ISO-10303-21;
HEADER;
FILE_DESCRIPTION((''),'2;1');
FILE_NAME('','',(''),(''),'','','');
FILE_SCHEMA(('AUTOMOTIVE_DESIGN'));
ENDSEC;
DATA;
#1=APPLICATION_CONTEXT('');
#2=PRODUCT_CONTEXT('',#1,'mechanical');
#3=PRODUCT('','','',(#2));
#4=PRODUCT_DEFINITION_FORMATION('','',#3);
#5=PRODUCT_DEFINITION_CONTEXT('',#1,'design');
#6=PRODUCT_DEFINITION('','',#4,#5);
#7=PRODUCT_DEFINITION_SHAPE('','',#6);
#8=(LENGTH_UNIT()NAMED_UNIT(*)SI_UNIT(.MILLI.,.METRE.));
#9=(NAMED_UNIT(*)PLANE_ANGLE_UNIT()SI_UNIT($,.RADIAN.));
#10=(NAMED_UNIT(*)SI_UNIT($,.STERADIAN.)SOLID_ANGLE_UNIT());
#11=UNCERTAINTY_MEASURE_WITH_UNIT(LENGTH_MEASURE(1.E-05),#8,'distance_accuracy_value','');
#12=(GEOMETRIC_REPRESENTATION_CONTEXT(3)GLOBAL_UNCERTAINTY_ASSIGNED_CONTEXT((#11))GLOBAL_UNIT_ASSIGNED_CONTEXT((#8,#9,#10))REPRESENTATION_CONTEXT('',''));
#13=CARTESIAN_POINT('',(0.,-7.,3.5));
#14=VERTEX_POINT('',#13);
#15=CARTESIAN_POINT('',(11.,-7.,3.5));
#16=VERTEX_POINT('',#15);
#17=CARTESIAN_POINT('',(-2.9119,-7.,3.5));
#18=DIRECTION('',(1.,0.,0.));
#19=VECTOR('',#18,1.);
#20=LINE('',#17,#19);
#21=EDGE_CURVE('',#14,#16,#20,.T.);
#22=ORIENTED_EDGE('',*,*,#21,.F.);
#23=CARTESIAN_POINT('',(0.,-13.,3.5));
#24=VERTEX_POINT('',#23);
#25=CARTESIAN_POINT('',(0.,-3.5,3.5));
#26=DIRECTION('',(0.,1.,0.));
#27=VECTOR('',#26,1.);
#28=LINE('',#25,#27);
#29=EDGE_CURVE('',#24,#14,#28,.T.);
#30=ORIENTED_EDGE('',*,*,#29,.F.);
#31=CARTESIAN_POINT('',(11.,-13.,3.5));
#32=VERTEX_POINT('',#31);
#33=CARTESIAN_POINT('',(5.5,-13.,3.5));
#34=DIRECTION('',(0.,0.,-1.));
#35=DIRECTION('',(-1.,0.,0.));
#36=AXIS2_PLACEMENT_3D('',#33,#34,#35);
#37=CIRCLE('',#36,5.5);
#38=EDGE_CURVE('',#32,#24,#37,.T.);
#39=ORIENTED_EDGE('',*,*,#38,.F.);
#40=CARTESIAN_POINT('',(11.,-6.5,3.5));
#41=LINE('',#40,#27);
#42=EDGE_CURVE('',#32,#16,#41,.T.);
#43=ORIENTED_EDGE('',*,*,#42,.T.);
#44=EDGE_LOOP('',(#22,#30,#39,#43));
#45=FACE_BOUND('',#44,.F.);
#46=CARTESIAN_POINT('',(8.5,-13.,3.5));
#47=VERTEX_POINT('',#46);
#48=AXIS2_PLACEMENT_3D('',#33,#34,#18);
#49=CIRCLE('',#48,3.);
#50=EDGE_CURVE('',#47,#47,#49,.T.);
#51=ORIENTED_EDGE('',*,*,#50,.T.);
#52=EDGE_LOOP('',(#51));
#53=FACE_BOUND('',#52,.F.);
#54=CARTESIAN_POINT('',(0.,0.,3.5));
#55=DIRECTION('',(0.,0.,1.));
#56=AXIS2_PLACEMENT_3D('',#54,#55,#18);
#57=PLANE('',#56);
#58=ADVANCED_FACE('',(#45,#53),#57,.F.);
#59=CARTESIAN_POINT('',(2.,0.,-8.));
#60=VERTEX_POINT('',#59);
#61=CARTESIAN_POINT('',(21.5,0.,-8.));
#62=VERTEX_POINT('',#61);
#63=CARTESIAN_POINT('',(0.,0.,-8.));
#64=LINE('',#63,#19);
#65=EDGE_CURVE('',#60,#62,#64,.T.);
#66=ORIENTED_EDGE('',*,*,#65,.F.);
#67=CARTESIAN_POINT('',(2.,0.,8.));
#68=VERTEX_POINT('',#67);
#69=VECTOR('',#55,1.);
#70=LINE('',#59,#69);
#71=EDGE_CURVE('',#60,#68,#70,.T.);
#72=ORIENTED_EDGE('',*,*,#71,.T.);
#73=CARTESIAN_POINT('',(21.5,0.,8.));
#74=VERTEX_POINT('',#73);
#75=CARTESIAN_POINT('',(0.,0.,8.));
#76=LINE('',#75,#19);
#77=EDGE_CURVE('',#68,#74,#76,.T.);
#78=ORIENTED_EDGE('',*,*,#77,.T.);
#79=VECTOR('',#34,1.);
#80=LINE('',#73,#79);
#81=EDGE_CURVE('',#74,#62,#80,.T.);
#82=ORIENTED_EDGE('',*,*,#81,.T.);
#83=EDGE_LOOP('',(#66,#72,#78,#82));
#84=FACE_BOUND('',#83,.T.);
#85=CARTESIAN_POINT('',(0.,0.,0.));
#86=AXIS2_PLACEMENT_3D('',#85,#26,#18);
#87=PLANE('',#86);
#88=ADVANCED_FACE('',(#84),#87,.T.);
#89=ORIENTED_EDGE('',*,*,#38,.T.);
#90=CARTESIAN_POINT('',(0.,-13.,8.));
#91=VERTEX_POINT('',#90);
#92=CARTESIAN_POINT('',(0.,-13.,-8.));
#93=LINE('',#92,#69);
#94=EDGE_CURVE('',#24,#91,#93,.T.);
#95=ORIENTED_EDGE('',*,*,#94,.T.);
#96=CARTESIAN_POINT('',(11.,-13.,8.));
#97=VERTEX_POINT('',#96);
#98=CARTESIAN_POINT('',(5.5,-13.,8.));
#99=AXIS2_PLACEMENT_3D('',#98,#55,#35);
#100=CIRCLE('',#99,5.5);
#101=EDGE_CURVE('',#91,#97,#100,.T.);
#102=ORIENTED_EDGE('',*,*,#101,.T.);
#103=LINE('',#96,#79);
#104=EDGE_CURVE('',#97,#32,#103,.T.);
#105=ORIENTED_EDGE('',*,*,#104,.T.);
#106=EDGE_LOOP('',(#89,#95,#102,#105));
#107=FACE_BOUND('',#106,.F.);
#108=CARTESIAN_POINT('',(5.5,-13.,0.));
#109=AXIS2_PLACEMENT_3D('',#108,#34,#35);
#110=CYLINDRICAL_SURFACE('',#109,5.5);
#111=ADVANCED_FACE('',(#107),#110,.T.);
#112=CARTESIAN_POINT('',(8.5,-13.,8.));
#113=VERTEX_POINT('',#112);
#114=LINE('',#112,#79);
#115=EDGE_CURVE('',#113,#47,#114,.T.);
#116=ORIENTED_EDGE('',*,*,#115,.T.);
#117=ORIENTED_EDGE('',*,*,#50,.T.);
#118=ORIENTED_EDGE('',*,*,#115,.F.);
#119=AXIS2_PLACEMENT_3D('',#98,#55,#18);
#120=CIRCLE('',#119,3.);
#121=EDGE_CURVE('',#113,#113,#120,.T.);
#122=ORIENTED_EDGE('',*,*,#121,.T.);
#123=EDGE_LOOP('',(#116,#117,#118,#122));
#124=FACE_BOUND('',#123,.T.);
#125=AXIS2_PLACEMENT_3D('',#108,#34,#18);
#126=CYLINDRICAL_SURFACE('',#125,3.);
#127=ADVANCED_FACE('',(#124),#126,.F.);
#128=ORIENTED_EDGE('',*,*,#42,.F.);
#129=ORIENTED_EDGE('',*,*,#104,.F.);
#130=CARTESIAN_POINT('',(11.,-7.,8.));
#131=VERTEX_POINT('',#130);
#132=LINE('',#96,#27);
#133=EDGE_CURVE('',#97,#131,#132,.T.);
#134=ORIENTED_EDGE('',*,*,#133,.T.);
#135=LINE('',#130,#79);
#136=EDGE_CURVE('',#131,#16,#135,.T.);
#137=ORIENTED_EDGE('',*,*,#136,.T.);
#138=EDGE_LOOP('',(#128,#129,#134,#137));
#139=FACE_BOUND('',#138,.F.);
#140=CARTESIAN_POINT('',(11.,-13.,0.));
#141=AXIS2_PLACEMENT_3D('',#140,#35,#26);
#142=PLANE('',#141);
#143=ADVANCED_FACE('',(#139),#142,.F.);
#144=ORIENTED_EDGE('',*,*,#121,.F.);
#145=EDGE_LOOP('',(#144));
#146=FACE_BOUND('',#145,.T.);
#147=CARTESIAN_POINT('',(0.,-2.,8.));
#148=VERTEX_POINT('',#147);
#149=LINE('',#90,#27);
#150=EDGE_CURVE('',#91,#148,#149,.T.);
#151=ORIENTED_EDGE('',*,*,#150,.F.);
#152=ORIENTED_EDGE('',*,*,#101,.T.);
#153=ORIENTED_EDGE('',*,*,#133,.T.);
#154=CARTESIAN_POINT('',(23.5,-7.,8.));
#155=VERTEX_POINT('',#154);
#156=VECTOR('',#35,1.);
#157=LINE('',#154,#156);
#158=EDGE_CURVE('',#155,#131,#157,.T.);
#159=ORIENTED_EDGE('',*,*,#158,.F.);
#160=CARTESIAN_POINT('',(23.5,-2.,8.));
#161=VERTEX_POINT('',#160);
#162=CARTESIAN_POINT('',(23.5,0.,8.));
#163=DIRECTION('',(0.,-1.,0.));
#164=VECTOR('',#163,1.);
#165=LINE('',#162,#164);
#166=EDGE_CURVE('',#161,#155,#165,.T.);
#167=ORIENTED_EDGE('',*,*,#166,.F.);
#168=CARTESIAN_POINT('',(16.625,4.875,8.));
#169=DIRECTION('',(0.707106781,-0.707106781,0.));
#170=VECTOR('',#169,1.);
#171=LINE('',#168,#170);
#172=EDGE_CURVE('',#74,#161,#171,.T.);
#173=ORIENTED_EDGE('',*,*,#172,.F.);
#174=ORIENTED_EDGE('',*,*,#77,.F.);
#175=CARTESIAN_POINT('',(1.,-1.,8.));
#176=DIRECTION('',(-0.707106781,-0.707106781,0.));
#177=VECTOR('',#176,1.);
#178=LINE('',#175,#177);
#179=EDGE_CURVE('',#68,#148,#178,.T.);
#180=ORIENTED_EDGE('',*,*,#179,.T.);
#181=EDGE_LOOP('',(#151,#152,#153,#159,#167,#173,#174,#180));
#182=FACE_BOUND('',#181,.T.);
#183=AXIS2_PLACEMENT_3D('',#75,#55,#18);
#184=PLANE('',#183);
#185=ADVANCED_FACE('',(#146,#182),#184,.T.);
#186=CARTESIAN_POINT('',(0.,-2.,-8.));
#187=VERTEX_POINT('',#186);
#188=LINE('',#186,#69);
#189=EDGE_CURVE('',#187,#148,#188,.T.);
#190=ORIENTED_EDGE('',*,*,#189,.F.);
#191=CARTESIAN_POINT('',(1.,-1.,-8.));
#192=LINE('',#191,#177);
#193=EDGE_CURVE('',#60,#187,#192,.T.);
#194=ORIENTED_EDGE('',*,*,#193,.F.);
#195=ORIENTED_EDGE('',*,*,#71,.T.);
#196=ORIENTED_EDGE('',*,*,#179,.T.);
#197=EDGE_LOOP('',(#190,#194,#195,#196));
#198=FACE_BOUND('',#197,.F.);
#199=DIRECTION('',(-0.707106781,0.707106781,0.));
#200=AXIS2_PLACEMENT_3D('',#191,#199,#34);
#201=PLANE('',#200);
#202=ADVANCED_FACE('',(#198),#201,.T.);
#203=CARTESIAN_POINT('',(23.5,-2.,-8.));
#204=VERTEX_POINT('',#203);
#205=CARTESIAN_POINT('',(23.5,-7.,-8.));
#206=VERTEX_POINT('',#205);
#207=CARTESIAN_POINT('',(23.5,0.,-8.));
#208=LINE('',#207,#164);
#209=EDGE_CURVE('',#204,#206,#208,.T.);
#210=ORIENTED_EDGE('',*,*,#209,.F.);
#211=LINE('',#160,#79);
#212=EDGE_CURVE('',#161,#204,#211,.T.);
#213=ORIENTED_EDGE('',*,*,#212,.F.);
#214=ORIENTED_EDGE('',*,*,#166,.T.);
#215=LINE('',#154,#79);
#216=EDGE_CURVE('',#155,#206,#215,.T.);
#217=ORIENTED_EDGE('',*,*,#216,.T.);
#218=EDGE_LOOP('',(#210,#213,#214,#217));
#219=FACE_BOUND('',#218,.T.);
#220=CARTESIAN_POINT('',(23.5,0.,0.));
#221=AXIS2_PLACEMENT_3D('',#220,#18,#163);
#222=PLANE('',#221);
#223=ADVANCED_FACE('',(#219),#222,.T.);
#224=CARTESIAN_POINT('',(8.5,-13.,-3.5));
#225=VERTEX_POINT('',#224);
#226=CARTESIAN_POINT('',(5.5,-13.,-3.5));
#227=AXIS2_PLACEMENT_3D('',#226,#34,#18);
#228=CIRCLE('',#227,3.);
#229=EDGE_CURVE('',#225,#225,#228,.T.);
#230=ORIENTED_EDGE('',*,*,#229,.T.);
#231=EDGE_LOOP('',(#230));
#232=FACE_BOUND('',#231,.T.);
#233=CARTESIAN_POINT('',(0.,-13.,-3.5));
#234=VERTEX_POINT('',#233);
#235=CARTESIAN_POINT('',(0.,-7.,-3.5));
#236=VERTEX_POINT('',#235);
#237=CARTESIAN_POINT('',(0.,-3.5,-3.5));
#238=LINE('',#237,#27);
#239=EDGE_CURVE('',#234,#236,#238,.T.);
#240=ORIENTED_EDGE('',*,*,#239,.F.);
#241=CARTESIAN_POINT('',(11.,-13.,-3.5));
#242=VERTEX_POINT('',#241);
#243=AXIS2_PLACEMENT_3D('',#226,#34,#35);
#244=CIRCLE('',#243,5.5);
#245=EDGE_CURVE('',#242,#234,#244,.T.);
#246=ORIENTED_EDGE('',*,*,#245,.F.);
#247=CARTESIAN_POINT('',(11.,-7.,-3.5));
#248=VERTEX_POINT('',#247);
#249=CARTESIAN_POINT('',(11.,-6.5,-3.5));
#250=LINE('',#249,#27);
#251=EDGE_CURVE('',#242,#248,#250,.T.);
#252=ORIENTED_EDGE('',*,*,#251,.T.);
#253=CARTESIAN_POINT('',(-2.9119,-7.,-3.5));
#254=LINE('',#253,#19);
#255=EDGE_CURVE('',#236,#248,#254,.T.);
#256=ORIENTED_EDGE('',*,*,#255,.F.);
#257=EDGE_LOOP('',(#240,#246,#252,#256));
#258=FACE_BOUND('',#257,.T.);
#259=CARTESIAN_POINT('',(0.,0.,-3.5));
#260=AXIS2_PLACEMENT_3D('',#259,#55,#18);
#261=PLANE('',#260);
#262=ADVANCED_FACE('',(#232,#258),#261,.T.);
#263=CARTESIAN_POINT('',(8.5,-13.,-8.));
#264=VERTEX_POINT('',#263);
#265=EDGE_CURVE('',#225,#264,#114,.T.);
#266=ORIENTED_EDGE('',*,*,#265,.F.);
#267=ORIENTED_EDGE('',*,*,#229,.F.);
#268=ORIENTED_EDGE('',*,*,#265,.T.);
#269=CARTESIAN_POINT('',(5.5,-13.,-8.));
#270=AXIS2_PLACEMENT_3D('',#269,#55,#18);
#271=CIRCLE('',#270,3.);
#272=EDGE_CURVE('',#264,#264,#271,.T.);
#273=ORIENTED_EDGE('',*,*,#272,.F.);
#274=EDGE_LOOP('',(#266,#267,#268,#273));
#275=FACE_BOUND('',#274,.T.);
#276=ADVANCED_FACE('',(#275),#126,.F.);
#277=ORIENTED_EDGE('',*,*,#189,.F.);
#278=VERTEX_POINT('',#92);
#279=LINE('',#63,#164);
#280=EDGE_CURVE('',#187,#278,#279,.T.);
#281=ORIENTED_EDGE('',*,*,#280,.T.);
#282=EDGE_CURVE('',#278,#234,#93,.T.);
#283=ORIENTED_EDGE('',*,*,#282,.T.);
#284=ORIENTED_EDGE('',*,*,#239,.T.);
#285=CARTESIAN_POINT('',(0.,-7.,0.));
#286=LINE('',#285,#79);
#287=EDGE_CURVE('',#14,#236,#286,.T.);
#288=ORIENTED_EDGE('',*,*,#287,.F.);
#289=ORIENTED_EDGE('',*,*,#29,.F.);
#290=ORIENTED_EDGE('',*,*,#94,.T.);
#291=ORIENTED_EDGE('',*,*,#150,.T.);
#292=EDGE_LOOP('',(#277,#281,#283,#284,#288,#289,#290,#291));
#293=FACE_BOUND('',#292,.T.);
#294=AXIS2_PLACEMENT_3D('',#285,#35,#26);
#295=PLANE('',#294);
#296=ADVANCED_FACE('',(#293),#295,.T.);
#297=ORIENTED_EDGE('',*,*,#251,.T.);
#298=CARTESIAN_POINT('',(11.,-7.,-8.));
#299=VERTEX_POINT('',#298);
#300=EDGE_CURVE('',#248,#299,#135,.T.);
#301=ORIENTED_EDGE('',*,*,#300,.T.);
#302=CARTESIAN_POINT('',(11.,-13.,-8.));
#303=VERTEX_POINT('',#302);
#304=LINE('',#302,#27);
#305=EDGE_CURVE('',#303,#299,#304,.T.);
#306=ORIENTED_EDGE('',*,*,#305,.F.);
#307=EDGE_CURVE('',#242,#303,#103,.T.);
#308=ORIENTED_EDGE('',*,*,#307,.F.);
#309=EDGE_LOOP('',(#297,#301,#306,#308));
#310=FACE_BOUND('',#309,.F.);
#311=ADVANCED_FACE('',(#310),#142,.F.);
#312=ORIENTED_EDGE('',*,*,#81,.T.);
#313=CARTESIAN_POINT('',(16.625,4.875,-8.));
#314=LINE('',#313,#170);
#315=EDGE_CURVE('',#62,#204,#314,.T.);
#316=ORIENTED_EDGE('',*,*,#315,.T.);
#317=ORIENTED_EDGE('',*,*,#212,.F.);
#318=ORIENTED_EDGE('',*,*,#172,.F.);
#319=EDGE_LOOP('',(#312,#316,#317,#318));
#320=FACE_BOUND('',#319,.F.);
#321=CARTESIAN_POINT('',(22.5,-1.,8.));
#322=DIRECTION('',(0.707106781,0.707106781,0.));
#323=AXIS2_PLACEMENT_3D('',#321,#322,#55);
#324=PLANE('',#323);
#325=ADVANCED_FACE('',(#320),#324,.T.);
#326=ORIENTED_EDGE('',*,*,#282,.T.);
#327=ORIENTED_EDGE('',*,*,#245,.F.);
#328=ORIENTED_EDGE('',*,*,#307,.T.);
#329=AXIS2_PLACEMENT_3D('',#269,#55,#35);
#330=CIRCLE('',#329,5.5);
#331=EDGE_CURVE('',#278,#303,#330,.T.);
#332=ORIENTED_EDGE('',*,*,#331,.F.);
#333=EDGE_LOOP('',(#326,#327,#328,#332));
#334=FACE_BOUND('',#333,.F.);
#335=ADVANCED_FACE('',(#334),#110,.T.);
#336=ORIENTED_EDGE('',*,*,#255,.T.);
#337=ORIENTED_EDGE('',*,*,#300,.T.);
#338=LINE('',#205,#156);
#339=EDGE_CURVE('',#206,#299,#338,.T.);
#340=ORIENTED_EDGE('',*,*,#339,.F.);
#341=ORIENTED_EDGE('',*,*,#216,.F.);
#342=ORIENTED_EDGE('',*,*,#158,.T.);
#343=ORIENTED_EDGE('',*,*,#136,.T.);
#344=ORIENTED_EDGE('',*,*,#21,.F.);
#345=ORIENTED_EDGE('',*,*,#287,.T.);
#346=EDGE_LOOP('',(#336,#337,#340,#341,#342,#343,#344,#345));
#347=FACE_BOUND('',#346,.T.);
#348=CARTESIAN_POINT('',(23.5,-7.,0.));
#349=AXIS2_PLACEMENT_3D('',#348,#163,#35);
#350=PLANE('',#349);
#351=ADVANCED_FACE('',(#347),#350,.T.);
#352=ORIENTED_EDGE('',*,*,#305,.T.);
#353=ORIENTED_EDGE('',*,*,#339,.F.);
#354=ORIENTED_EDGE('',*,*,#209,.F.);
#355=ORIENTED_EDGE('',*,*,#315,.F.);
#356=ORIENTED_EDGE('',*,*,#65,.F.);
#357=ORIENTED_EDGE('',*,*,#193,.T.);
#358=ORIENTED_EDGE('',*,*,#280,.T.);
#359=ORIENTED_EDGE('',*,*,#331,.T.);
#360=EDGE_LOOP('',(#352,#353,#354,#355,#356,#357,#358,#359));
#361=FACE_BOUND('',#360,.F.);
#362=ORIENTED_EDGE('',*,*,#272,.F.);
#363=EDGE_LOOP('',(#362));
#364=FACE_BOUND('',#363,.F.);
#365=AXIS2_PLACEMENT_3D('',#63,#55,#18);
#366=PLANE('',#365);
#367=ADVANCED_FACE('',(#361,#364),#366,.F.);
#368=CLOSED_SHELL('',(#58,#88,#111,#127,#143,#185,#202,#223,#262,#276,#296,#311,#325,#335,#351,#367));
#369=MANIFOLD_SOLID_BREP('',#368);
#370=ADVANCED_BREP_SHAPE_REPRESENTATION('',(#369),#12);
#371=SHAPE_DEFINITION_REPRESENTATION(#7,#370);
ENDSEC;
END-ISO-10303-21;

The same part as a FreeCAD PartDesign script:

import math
import FreeCAD as App
import Part
import Sketcher
from FreeCAD import Vector


def edges_at(feature, points):
    """Names of the edges that pass closest to the given points."""
    edges = feature.Shape.Edges
    near = lambda p: min(range(len(edges)), key=lambda i: edges[i].distToShape(Part.Vertex(*p))[0])
    return sorted({f"Edge{near(p) + 1}" for p in points})

doc = App.newDocument("Part")
params = doc.addObject("Spreadsheet::Sheet", "Params")
for row, (alias, value) in enumerate([
    ("sketch1_diameter", "6 mm"),
    ("sketch1_radius", "5.5 mm"),
    ("sketch1_height", "6 mm"),
    ("sketch1_height2", "7 mm"),
    ("sketch1_width", "23.5 mm"),
    ("pad1_length", "16 mm"),
    ("sketch2_height", "13.77 mm"),
    ("pocket1_length", "7 mm"),
    ("chamfer_size", "2 mm"),
], start=1):
    params.set(f"A{row}", alias)
    params.set(f"B{row}", "=" + value)
    params.setAlias(f"B{row}", alias)

body = doc.addObject("PartDesign::Body", "Body")

# Sketch on XY plane
sketch1 = body.newObject("Sketcher::SketchObject", "Sketch")
sketch1.AttachmentSupport = (doc.getObject("XY_Plane"), [""])
sketch1.MapMode = "FlatFace"
sketch1.addGeometry([
    Part.LineSegment(Vector(23.5, 0, 0), Vector(0, 0, 0)),  # 0
    Part.LineSegment(Vector(0, 0, 0), Vector(0, -13, 0)),  # 1
    Part.ArcOfCircle(Part.Circle(Vector(5.5, -13, 0), Vector(0, 0, 1), 5.5), math.radians(180), math.radians(360)),  # 2
    Part.LineSegment(Vector(11, -13, 0), Vector(11, -7, 0)),  # 3
    Part.LineSegment(Vector(11, -7, 0), Vector(23.5, -7, 0)),  # 4
    Part.LineSegment(Vector(23.5, -7, 0), Vector(23.5, 0, 0)),  # 5
    Part.Circle(Vector(5.5, -13, 0), Vector(0, 0, 1), 3),  # 6
], False)
sketch1.addConstraint([
    Sketcher.Constraint("Coincident", 0, 2, 1, 1),
    Sketcher.Constraint("Tangent", 1, 2, 2, 1),
    Sketcher.Constraint("Tangent", 2, 2, 3, 1),
    Sketcher.Constraint("Coincident", 3, 2, 4, 1),
    Sketcher.Constraint("Coincident", 4, 2, 5, 1),
    Sketcher.Constraint("Coincident", 5, 2, 0, 1),
    Sketcher.Constraint("Horizontal", 0),
    Sketcher.Constraint("Vertical", 1),
    Sketcher.Constraint("Vertical", 3),
    Sketcher.Constraint("Horizontal", 4),
    Sketcher.Constraint("Vertical", 5),
    Sketcher.Constraint("Coincident", 0, 2, -1, 1),
    Sketcher.Constraint("Coincident", 6, 3, 2, 3),
    Sketcher.Constraint("Diameter", 6, 6.0),
    Sketcher.Constraint("Radius", 2, 5.5),
    Sketcher.Constraint("DistanceY", 3, 1, 3, 2, 6.0),
    Sketcher.Constraint("DistanceY", 5, 1, 5, 2, 7.0),
    Sketcher.Constraint("DistanceX", 0, 2, 0, 1, 23.5),
])
sketch1.setExpression("Constraints[13]", "Params.sketch1_diameter")
sketch1.setExpression("Constraints[14]", "Params.sketch1_radius")
sketch1.setExpression("Constraints[15]", "Params.sketch1_height")
sketch1.setExpression("Constraints[16]", "Params.sketch1_height2")
sketch1.setExpression("Constraints[17]", "Params.sketch1_width")
pad1 = body.newObject("PartDesign::Pad", "Pad")
pad1.Profile = sketch1
pad1.setExpression("Length", "Params.pad1_length")
pad1.Midplane = True

# Sketch on XY plane
sketch2 = body.newObject("Sketcher::SketchObject", "Sketch001")
sketch2.AttachmentSupport = (doc.getObject("XY_Plane"), [""])
sketch2.MapMode = "FlatFace"
sketch2.addGeometry([
    Part.LineSegment(Vector(15.7404, -7, 0), Vector(-2.9119, -7, 0)),
    Part.LineSegment(Vector(-2.9119, -7, 0), Vector(-2.9119, -20.77, 0)),
    Part.LineSegment(Vector(-2.9119, -20.77, 0), Vector(15.7404, -20.77, 0)),
    Part.LineSegment(Vector(15.7404, -20.77, 0), Vector(15.7404, -7, 0)),
], False)
sketch2.addConstraint([
    Sketcher.Constraint("Coincident", 0, 2, 1, 1),
    Sketcher.Constraint("Coincident", 1, 2, 2, 1),
    Sketcher.Constraint("Coincident", 2, 2, 3, 1),
    Sketcher.Constraint("Coincident", 3, 2, 0, 1),
    Sketcher.Constraint("Horizontal", 0),
    Sketcher.Constraint("Vertical", 1),
    Sketcher.Constraint("Horizontal", 2),
    Sketcher.Constraint("Vertical", 3),
    Sketcher.Constraint("DistanceY", 0, 2, -1, 1, 7.0),
    Sketcher.Constraint("DistanceY", 1, 2, 1, 1, 13.77),
    Sketcher.Constraint("DistanceX", 0, 2, 0, 1, 18.6523),
    Sketcher.Constraint("DistanceX", 0, 2, -1, 1, 2.912),
])
sketch2.setExpression("Constraints[9]", "Params.sketch2_height")
pocket1 = body.newObject("PartDesign::Pocket", "Pocket")
pocket1.Profile = sketch2
pocket1.setExpression("Length", "Params.pocket1_length")
pocket1.Midplane = True
doc.recompute()

chamfer = body.newObject("PartDesign::Chamfer", "Chamfer")
chamfer.Base = (pocket1, edges_at(pocket1, [(23.5, 0, 0), (0, 0, 0)]))
chamfer.setExpression("Size", "Params.chamfer_size")

doc.recompute()
